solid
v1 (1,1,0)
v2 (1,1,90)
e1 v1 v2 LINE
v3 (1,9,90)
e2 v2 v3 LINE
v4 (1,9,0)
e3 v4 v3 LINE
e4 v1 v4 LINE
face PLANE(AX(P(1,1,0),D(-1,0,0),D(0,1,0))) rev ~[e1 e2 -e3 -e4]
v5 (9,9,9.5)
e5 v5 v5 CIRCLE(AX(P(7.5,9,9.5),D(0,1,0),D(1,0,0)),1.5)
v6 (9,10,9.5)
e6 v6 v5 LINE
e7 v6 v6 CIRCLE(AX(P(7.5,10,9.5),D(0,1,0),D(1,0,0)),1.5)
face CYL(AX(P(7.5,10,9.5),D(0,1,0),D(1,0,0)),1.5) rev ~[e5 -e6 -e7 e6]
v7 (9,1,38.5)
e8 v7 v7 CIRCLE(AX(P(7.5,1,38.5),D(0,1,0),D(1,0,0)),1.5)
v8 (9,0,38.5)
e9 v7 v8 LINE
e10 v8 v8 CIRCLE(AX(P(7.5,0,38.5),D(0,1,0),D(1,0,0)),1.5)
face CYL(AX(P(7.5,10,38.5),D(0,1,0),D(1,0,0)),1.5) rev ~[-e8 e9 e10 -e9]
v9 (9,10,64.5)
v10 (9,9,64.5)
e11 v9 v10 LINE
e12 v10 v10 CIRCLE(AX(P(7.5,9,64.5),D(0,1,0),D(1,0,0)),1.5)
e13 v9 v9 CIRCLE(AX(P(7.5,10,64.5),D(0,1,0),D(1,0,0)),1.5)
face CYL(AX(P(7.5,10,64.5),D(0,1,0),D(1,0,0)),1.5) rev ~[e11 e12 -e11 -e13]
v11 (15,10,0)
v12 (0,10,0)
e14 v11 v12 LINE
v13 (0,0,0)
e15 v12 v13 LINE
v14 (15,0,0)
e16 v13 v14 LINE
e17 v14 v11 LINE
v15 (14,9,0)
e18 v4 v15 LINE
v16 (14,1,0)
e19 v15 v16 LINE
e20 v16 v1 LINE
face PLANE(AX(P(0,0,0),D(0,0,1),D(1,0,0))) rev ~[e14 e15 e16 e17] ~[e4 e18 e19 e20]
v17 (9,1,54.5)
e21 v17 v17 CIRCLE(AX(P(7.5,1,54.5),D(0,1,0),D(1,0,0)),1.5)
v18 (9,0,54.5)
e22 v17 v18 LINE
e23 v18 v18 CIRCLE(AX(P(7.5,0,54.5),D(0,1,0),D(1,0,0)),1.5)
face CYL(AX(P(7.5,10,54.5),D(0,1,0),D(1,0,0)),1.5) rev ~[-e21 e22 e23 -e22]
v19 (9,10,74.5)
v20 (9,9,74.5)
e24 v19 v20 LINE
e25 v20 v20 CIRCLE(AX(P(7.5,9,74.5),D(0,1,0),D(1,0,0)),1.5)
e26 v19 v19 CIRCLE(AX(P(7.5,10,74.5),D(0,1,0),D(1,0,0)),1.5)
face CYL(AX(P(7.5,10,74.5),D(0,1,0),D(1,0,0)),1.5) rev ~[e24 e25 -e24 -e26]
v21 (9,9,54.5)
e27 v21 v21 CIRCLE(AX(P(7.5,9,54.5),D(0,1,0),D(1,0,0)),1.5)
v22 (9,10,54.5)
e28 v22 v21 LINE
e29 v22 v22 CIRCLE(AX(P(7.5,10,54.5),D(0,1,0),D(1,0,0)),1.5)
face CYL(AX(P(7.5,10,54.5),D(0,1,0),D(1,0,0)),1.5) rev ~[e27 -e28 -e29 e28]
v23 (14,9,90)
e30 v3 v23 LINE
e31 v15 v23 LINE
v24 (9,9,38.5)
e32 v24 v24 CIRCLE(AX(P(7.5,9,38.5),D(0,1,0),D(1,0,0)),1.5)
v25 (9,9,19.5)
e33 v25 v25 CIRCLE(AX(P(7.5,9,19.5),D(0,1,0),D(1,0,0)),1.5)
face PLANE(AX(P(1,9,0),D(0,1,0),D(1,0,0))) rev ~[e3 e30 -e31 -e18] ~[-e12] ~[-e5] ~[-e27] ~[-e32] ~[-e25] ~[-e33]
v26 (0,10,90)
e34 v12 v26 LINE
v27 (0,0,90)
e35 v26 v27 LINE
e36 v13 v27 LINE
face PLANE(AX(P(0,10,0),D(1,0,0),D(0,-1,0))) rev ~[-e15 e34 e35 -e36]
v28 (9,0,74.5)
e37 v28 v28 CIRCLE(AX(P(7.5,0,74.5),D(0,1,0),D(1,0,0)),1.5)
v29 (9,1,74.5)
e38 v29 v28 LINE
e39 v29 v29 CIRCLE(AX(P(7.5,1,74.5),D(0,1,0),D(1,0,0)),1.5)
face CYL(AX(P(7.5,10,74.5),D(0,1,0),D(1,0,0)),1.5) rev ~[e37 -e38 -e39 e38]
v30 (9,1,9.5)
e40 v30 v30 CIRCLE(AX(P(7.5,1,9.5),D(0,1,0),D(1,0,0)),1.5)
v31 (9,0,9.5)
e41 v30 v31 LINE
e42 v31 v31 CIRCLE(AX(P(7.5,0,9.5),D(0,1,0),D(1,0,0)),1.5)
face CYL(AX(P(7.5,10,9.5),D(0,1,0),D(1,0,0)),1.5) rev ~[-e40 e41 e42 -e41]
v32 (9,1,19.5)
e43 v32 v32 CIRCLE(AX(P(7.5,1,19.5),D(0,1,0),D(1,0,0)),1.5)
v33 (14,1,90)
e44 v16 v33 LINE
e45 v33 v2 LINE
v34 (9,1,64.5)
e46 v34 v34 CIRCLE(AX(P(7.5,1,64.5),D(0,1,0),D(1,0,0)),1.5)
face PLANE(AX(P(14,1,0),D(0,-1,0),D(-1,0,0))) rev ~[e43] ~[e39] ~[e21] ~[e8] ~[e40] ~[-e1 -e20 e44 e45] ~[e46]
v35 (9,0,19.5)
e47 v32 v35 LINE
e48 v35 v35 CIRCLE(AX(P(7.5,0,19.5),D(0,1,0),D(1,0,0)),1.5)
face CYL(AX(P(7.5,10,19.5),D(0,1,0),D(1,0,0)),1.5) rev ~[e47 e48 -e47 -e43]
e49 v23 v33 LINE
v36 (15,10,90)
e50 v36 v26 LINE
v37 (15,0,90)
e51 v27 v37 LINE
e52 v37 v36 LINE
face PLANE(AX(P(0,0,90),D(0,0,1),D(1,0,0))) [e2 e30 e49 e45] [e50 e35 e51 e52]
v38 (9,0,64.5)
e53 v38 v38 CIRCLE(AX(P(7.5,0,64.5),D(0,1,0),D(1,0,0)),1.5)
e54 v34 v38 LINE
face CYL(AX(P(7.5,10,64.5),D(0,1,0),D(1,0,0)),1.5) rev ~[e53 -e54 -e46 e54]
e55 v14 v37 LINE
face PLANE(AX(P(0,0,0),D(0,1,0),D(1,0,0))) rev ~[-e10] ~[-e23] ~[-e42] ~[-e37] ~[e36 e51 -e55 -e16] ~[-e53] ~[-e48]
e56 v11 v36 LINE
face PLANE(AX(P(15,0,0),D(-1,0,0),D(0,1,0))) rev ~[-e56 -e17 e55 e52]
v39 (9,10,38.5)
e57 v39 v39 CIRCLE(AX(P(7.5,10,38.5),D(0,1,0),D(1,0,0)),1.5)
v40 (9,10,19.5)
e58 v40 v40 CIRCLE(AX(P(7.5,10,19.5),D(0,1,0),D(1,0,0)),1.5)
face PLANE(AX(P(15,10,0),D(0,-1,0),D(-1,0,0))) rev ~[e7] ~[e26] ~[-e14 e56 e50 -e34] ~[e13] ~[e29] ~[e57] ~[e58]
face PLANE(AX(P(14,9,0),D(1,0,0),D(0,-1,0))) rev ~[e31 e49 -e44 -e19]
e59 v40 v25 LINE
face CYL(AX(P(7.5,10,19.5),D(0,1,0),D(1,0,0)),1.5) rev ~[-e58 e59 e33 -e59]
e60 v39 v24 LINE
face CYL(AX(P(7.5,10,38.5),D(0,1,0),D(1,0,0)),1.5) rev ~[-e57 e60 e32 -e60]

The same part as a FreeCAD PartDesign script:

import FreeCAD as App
import Part
import Sketcher
Q = App.Units.Quantity


def add_polygon(sketch, points):
    """Adds a closed chain of lines whose ends are joined by coincident constraints."""
    first, n = sketch.GeometryCount, len(points)
    for a, b in zip(points, points[1:] + points[:1]):
        sketch.addGeometry(Part.LineSegment(App.Vector(*a, 0), App.Vector(*b, 0)), False)
    for i in range(n):
        sketch.addConstraint(Sketcher.Constraint("Coincident", first + i, 2, first + (i + 1) % n, 1))

doc = App.newDocument("Part")
body = doc.addObject("PartDesign::Body", "Body")

sketch1 = body.newObject("Sketcher::SketchObject", "Sketch")
sketch1.AttachmentSupport = (doc.getObject("XY_Plane"), [""])
sketch1.MapMode = "FlatFace"
add_polygon(sketch1, [(0, 10), (0, 0), (15, 0), (15, 10)])
add_polygon(sketch1, [(1, 1), (1, 9), (14, 9), (14, 1)])
sketch1.addConstraint([
    Sketcher.Constraint("Vertical", 0),
    Sketcher.Constraint("Horizontal", 1),
    Sketcher.Constraint("Vertical", 2),
    Sketcher.Constraint("Horizontal", 3),
    Sketcher.Constraint("Vertical", 4),
    Sketcher.Constraint("Horizontal", 5),
    Sketcher.Constraint("Vertical", 6),
    Sketcher.Constraint("Horizontal", 7),
    Sketcher.Constraint("Coincident", 0, 2, -1, 1),
    Sketcher.Constraint("DistanceX", 1, 1, 1, 2, Q("15 mm")),
    Sketcher.Constraint("DistanceX", 5, 1, 5, 2, Q("13 mm")),
    Sketcher.Constraint("DistanceY", 0, 2, 0, 1, Q("10 mm")),
    Sketcher.Constraint("DistanceY", 4, 1, 4, 2, Q("8 mm")),
    Sketcher.Constraint("DistanceX", -1, 1, 4, 2, Q("1 mm")),
    Sketcher.Constraint("DistanceY", -1, 1, 6, 2, Q("1 mm")),
])
pad1 = body.newObject("PartDesign::Pad", "Pad")
pad1.Profile = sketch1
pad1.Length = 90

sketch2 = body.newObject("Sketcher::SketchObject", "Sketch001")
sketch2.AttachmentSupport = (doc.getObject("XZ_Plane"), [""])
sketch2.MapMode = "FlatFace"
sketch2.AttachmentOffset = App.Placement(App.Vector(0, 0, -10), App.Rotation())
sketch2.addGeometry([
    Part.Circle(App.Vector(7.5, 9.5, 0), App.Vector(0, 0, 1), 1.5),
    Part.Circle(App.Vector(7.5, 74.5, 0), App.Vector(0, 0, 1), 1.5),
    Part.Circle(App.Vector(7.5, 19.5, 0), App.Vector(0, 0, 1), 1.5),
    Part.Circle(App.Vector(7.5, 64.5, 0), App.Vector(0, 0, 1), 1.5),
    Part.Circle(App.Vector(7.5, 54.5, 0), App.Vector(0, 0, 1), 1.5),
    Part.Circle(App.Vector(7.5, 38.5, 0), App.Vector(0, 0, 1), 1.5),
], False)
sketch2.addConstraint([
    Sketcher.Constraint("Equal", 0, 1),
    Sketcher.Constraint("Equal", 1, 2),
    Sketcher.Constraint("Equal", 2, 3),
    Sketcher.Constraint("Equal", 3, 4),
    Sketcher.Constraint("Equal", 4, 5),
    Sketcher.Constraint("Vertical", 0, 3, 1, 3),
    Sketcher.Constraint("Vertical", 1, 3, 2, 3),
    Sketcher.Constraint("Vertical", 2, 3, 3, 3),
    Sketcher.Constraint("Vertical", 3, 3, 4, 3),
    Sketcher.Constraint("Vertical", 4, 3, 5, 3),
    Sketcher.Constraint("Diameter", 0, Q("3 mm")),
    Sketcher.Constraint("DistanceY", 0, 3, 2, 3, Q("10 mm")),
    Sketcher.Constraint("DistanceY", 3, 3, 1, 3, Q("10 mm")),
    Sketcher.Constraint("DistanceY", 4, 3, 3, 3, Q("10 mm")),
    Sketcher.Constraint("DistanceY", 5, 3, 4, 3, Q("16 mm")),
    Sketcher.Constraint("DistanceX", -1, 1, 0, 3, Q("7.5 mm")),
    Sketcher.Constraint("DistanceY", -1, 1, 0, 3, Q("9.5 mm")),
    Sketcher.Constraint("DistanceY", 0, 3, 1, 3, Q("65 mm")),
])
pocket1 = body.newObject("PartDesign::Pocket", "Pocket")
pocket1.Profile = sketch2
pocket1.Length = 10
pocket1.Reversed = True

doc.recompute()
